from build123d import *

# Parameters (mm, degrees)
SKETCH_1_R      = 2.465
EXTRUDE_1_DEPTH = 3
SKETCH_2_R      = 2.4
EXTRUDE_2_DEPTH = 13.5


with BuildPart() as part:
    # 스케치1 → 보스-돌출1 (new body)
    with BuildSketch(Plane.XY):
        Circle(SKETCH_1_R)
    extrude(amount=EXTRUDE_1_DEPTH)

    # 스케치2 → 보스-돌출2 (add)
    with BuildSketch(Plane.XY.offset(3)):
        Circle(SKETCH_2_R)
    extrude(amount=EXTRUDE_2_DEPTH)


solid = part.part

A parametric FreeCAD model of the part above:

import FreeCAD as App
import Part
import Sketcher

V = App.Vector

doc = App.newDocument("Part")
body = doc.addObject("PartDesign::Body", "Body")

sketch1 = body.newObject("Sketcher::SketchObject", "Sketch")
sketch1.AttachmentSupport = (doc.getObject("XY_Plane"), [""])
sketch1.MapMode = "FlatFace"
sketch1.addGeometry(Part.Circle(V(0, 0, 0), V(0, 0, 1), 2.465), False)
sketch1.addConstraint([
    Sketcher.Constraint("Coincident", 0, 3, -1, 1),
    Sketcher.Constraint("Diameter", 0, 4.93),
])
pad1 = body.newObject("PartDesign::Pad", "Pad")
pad1.Profile = sketch1
pad1.Length = 3

sketch2 = body.newObject("Sketcher::SketchObject", "Sketch001")
sketch2.AttachmentSupport = (doc.getObject("XY_Plane"), [""])
sketch2.MapMode = "FlatFace"
sketch2.AttachmentOffset = App.Placement(V(0, 0, 3), App.Rotation())
sketch2.addGeometry(Part.Circle(V(0, 0, 0), V(0, 0, 1), 2.4), False)
sketch2.addConstraint([
    Sketcher.Constraint("Coincident", 0, 3, -1, 1),
    Sketcher.Constraint("Diameter", 0, 4.8),
])
pad2 = body.newObject("PartDesign::Pad", "Pad001")
pad2.Profile = sketch2
pad2.Length = 13.5

doc.recompute()
